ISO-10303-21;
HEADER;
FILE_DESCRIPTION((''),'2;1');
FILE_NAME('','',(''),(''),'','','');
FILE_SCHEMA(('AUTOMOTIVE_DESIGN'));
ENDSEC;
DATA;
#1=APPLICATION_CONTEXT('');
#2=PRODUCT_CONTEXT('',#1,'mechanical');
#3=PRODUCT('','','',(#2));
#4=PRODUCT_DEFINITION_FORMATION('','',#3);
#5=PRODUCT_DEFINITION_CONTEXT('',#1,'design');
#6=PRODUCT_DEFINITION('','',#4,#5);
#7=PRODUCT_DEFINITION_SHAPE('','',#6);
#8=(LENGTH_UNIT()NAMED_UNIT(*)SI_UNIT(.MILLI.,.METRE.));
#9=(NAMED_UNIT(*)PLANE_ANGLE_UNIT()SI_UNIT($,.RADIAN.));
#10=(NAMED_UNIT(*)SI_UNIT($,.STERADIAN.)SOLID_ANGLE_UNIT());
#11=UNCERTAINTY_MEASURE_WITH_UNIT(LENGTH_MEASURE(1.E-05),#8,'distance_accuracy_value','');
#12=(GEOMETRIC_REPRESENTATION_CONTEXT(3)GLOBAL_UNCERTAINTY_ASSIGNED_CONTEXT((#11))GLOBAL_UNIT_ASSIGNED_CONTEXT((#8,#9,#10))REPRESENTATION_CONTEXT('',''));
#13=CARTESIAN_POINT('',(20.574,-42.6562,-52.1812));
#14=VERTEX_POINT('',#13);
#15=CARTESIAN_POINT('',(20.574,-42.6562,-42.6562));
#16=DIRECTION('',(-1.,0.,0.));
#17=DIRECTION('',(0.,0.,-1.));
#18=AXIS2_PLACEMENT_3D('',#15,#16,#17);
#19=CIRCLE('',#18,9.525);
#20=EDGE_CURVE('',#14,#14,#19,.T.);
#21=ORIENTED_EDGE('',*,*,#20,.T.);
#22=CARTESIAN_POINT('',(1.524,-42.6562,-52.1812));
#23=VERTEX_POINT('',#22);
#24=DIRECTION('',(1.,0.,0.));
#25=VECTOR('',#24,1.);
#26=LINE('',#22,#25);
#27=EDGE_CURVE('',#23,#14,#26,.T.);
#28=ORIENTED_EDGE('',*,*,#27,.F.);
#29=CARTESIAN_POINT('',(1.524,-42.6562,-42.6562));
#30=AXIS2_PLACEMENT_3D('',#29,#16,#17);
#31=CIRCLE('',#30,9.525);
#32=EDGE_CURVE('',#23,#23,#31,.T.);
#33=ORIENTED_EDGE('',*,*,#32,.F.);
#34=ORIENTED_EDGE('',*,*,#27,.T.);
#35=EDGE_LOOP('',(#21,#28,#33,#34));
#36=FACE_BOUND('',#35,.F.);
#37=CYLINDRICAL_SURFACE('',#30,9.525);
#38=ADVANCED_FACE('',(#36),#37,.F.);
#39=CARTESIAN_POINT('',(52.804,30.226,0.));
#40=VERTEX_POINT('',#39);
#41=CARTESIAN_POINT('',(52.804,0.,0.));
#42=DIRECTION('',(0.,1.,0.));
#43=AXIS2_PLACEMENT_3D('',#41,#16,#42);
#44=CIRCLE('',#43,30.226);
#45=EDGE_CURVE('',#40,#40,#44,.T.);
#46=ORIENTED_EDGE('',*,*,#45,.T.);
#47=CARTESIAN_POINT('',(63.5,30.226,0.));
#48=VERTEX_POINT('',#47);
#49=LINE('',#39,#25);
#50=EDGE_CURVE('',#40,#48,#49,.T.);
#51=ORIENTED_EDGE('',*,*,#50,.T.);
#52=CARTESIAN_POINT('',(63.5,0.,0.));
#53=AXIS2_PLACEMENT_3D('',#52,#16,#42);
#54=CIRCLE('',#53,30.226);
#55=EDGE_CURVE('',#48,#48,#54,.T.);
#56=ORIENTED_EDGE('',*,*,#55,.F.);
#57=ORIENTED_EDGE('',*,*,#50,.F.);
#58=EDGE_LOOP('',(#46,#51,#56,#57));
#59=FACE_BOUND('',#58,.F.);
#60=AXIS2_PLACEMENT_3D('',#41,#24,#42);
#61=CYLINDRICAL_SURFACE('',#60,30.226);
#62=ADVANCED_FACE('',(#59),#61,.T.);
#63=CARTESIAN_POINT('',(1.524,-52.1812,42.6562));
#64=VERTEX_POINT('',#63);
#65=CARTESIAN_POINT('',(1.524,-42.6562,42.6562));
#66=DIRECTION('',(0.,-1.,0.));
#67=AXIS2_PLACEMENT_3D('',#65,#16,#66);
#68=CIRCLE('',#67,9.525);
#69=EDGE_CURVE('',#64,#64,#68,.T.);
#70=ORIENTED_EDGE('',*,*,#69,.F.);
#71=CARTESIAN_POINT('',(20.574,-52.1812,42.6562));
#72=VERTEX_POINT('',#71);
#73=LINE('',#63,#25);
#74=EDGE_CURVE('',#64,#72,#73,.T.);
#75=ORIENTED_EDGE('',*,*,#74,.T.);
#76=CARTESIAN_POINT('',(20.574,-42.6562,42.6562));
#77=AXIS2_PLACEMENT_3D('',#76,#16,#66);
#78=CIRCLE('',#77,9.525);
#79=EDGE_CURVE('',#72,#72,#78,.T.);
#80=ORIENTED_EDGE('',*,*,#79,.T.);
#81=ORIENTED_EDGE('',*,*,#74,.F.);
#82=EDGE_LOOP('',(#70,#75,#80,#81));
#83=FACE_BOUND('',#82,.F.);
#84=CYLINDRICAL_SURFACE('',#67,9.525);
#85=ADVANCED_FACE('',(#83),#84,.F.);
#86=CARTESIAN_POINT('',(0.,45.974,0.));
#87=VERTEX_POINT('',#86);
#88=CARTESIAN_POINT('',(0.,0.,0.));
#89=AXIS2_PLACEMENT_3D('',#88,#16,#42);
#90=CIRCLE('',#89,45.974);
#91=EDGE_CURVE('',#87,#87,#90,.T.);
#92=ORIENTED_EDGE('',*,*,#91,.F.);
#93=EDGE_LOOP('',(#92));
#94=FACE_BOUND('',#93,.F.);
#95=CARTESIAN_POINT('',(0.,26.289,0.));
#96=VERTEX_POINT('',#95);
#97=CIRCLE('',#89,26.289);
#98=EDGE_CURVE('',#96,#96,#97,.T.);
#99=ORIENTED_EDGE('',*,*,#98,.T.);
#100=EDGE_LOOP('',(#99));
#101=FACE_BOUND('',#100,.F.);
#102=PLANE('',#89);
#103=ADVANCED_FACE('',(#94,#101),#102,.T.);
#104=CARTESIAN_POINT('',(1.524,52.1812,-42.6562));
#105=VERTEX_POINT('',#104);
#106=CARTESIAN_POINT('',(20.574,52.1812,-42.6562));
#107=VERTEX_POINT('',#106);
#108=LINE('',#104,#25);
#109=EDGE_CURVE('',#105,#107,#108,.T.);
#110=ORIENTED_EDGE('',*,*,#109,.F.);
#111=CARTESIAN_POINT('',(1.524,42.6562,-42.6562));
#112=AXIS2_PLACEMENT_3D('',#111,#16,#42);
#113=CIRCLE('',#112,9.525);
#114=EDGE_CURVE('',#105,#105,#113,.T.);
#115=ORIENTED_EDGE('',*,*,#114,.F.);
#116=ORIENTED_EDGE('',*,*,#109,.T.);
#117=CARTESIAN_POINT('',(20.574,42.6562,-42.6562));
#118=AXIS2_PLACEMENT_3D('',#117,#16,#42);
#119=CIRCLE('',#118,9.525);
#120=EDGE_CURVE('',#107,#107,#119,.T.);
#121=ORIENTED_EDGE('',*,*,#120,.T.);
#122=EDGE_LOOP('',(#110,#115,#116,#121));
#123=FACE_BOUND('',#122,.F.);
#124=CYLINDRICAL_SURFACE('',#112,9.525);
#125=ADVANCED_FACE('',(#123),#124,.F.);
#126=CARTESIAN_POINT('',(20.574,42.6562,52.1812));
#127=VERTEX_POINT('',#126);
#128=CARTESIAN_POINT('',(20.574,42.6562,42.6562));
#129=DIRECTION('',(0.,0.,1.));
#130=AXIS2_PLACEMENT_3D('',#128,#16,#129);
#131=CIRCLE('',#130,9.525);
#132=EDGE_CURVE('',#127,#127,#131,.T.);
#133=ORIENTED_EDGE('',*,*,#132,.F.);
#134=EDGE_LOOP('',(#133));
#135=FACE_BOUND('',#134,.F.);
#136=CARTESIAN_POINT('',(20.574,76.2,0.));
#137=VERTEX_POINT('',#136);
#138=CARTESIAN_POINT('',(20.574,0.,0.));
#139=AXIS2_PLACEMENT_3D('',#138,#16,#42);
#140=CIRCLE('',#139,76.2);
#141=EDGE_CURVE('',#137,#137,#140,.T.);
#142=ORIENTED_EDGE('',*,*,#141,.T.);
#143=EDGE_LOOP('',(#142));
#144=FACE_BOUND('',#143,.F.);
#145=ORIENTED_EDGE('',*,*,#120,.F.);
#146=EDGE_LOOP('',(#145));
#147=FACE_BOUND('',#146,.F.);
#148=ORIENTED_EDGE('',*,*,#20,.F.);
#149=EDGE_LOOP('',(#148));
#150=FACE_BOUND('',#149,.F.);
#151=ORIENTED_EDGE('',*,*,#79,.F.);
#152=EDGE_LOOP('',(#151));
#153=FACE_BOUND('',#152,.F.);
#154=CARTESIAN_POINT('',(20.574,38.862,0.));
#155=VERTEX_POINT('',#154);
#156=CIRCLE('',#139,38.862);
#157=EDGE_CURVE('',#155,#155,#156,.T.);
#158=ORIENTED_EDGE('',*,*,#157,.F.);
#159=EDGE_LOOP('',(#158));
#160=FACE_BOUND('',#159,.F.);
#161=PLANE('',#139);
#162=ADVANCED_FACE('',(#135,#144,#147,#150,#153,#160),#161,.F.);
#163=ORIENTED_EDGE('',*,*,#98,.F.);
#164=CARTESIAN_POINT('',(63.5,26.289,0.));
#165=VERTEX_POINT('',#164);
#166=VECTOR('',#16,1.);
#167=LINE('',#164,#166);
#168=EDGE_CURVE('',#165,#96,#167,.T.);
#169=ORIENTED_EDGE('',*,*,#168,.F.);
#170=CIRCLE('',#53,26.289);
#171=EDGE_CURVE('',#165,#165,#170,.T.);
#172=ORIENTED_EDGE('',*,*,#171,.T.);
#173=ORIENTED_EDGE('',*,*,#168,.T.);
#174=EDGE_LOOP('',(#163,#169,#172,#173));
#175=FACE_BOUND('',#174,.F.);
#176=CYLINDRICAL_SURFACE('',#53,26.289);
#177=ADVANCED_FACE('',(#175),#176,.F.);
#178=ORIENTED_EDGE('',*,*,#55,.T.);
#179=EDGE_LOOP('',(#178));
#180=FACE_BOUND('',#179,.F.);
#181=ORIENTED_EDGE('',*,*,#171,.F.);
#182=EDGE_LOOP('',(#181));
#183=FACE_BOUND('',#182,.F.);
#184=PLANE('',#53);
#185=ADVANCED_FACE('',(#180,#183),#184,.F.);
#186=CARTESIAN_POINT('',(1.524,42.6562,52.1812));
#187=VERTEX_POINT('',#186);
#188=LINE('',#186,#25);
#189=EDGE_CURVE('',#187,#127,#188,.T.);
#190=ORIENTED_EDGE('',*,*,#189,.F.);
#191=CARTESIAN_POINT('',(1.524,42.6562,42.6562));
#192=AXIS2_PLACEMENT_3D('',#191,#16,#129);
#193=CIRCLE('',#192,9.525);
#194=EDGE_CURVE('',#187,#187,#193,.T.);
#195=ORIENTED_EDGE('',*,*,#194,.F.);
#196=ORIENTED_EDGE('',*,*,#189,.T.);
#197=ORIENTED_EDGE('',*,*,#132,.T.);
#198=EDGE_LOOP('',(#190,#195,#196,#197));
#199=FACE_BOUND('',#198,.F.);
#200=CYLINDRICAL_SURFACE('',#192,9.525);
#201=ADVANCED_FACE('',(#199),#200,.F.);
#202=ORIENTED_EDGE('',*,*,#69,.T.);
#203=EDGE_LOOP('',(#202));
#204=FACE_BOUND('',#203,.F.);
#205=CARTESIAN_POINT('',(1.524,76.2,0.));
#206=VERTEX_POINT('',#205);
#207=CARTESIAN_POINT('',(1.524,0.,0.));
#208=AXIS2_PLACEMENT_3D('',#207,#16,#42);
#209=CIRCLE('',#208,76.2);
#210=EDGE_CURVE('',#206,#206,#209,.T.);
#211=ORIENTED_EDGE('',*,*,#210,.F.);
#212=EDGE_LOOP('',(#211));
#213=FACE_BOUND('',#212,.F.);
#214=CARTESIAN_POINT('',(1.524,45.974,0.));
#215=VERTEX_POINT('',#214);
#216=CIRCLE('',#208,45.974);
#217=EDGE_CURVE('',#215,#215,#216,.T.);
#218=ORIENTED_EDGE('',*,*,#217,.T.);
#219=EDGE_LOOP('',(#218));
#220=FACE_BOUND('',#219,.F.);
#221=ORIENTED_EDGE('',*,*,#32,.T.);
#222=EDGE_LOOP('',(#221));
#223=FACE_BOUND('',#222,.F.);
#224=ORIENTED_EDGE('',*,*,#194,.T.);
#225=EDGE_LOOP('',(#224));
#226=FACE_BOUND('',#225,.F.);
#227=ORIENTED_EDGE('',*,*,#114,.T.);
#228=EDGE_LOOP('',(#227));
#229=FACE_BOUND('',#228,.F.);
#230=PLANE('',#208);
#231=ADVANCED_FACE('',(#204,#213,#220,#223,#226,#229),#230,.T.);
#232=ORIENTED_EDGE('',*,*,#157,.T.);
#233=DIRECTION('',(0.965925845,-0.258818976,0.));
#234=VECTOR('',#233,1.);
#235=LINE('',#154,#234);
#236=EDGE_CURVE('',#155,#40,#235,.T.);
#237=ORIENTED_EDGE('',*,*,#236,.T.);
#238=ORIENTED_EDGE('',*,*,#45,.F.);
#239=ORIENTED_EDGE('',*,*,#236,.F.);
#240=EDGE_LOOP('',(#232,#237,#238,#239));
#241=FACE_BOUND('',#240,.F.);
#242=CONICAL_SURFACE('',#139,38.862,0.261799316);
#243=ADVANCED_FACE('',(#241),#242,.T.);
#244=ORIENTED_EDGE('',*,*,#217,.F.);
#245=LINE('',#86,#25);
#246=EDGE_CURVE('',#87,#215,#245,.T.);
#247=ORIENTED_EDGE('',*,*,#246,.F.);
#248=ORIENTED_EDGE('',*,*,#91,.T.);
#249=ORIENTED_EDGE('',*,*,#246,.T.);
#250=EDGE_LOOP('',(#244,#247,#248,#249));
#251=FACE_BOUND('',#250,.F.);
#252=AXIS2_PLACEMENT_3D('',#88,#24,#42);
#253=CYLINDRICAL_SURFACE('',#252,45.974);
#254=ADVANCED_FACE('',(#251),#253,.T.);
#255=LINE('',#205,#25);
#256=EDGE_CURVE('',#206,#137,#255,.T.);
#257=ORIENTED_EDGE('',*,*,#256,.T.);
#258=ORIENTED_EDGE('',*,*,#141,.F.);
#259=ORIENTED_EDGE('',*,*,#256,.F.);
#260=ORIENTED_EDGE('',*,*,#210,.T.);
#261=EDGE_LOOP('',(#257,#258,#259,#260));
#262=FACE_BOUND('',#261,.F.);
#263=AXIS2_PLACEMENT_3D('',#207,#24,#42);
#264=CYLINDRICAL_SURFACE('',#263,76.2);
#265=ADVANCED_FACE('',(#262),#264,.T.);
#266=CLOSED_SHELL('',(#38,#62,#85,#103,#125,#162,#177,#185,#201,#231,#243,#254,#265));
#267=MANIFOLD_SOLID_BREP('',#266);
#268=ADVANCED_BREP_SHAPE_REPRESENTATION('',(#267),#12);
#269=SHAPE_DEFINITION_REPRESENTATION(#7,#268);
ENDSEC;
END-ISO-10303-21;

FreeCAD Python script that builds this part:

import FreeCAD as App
import Part
import Sketcher
Q = App.Units.Quantity


def add_polygon(sketch, points):
    """Adds a closed chain of lines whose ends are joined by coincident constraints."""
    first, n = sketch.GeometryCount, len(points)
    for a, b in zip(points, points[1:] + points[:1]):
        sketch.addGeometry(Part.LineSegment(App.Vector(*a, 0), App.Vector(*b, 0)), False)
    for i in range(n):
        sketch.addConstraint(Sketcher.Constraint("Coincident", first + i, 2, first + (i + 1) % n, 1))

doc = App.newDocument("Part")
body = doc.addObject("PartDesign::Body", "Body")

# Sketch on XY plane
sketch1 = doc.addObject("Sketcher::SketchObject", "Sketch")
body.addObject(sketch1)
sketch1.AttachmentSupport = (doc.XY_Plane, [""])
sketch1.MapMode = "FlatFace"
add_polygon(sketch1, [(0, 46), (0, 26.3), (63.5, 26.3), (63.5, 30.2), (52.8, 30.2), (20.6, 38.9), (20.6, 76.2), (1.5, 76.2), (1.5, 46)])  # lines 0-8
sketch1.addConstraint(Sketcher.Constraint("Vertical", 0))
sketch1.addConstraint(Sketcher.Constraint("Horizontal", 1))
sketch1.addConstraint(Sketcher.Constraint("Vertical", 2))
sketch1.addConstraint(Sketcher.Constraint("Horizontal", 3))
sketch1.addConstraint(Sketcher.Constraint("Vertical", 5))
sketch1.addConstraint(Sketcher.Constraint("Horizontal", 6))
sketch1.addConstraint(Sketcher.Constraint("Vertical", 7))
sketch1.addConstraint(Sketcher.Constraint("Horizontal", 8))
sketch1.addConstraint(Sketcher.Constraint("PointOnObject", 0, 2, -2))
sketch1.addConstraint(Sketcher.Constraint("DistanceX", 6, 2, 6, 1, Q("0.75 in")))
sketch1.addConstraint(Sketcher.Constraint("DistanceX", 8, 2, 8, 1, Q("0.06 in")))
sketch1.addConstraint(Sketcher.Constraint("DistanceX", 6, 2, 2, 2, Q("2.44 in")))
sketch1.addConstraint(Sketcher.Constraint("DistanceY", -1, 1, 5, 2, Q("3 in")))
sketch1.addConstraint(Sketcher.Constraint("Angle", 4, Q("165 deg")))
sketch1.addConstraint(Sketcher.Constraint("DistanceY", 5, 1, 5, 2, Q("1.47 in")))
sketch1.addConstraint(Sketcher.Constraint("DistanceY", 7, 2, 7, 1, Q("1.19 in")))
sketch1.addConstraint(Sketcher.Constraint("DistanceY", 0, 2, 0, 1, Q("0.775 in")))
sketch1.addConstraint(Sketcher.Constraint("DistanceY", 2, 1, 2, 2, Q("0.155 in")))
revolution = doc.addObject("PartDesign::Revolution", "Revolution")
body.addObject(revolution)
revolution.Profile = sketch1
revolution.ReferenceAxis = (sketch1, ["H_Axis"])
revolution.Angle = 360

# Sketch on YZ plane
sketch2 = doc.addObject("Sketcher::SketchObject", "Sketch001")
body.addObject(sketch2)
sketch2.AttachmentSupport = (doc.YZ_Plane, [""])
sketch2.MapMode = "FlatFace"
sketch2.AttachmentOffset = App.Placement(App.Vector(0, 0, 0.06 * 25.4), App.Rotation())
sketch2.addGeometry(Part.Circle(App.Vector(43, 43, 0), App.Vector(0, 0, 1), 10), False)
sketch2.addConstraint(Sketcher.Constraint("Diameter", 0, Q("0.75 in")))
sketch2.addConstraint(Sketcher.Constraint("DistanceX", -1, 1, 0, 3, Q("42.6562 mm")))
sketch2.addConstraint(Sketcher.Constraint("DistanceY", -1, 1, 0, 3, Q("42.6562 mm")))
pocket1 = doc.addObject("PartDesign::Pocket", "Pocket")
body.addObject(pocket1)
pocket1.Profile = sketch2
pocket1.Type = "ThroughAll"
pocket1.Reversed = True
doc.recompute()

polarpattern = doc.addObject("PartDesign::PolarPattern", "PolarPattern")
body.addObject(polarpattern)
polarpattern.Originals = [pocket1]
polarpattern.Axis = (doc.X_Axis, [""])
polarpattern.Angle = 360
polarpattern.Occurrences = 4
body.Tip = polarpattern

doc.recompute()
